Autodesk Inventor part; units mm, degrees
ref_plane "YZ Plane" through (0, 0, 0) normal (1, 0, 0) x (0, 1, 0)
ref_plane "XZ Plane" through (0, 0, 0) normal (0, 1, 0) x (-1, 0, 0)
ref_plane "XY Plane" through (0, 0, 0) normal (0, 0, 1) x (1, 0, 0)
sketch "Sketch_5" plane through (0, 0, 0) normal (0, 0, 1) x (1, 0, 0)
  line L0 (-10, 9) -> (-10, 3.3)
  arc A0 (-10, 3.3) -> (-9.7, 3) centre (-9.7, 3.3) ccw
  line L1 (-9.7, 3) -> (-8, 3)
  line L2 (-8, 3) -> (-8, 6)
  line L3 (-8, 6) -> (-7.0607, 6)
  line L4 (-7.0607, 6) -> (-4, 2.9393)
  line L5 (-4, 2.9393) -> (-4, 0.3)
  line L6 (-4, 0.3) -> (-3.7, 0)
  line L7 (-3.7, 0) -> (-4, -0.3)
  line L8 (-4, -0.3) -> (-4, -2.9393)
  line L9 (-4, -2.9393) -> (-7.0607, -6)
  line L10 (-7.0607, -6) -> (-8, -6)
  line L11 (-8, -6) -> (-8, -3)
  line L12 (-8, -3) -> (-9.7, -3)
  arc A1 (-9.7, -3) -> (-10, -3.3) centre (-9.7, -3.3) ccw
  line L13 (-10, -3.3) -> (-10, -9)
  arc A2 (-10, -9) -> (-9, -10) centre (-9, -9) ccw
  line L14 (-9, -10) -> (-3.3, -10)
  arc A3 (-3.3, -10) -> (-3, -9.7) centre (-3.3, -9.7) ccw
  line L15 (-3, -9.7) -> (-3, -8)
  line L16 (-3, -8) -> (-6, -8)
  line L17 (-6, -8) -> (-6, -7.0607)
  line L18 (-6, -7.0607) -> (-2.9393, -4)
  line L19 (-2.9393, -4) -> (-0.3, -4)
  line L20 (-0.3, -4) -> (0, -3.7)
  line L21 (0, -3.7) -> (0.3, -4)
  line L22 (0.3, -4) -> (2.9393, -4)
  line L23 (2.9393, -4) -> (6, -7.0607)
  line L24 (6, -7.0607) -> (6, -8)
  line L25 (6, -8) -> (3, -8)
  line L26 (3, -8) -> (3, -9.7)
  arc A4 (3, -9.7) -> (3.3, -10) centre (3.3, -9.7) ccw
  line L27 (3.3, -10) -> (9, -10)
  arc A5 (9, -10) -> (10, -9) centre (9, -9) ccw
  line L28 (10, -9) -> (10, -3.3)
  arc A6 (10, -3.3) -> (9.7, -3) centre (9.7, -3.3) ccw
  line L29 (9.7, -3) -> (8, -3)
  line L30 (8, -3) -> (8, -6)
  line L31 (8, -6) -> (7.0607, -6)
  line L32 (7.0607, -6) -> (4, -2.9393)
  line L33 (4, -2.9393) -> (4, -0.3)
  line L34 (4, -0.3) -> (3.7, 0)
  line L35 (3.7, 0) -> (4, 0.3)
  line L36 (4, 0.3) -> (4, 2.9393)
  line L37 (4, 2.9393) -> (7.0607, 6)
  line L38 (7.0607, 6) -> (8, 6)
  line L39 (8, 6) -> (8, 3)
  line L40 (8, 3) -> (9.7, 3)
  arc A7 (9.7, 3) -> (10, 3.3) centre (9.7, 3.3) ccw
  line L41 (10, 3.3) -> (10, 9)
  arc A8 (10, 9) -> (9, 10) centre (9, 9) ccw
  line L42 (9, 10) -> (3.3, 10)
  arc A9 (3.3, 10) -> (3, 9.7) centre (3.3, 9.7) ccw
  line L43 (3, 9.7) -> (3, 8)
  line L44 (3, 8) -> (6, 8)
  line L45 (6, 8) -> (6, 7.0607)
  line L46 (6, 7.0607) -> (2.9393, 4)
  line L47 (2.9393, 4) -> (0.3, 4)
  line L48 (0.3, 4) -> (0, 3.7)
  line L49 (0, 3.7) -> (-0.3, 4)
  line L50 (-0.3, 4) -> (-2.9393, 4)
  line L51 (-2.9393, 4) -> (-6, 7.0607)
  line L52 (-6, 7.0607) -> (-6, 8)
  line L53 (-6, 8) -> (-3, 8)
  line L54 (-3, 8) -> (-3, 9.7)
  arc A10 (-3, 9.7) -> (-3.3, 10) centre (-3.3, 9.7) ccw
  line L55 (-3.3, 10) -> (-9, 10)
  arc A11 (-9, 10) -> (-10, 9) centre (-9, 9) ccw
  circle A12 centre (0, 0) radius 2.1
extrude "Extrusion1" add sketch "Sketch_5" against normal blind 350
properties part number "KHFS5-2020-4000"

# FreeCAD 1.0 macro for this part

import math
import FreeCAD as App
import Part
import Sketcher

V = App.Vector
Q = App.Units.Quantity

doc = App.newDocument("Part")
body = doc.addObject("PartDesign::Body", "Body")

sketch1 = body.newObject("Sketcher::SketchObject", "Sketch")
sketch1.AttachmentSupport = (doc.getObject("XY_Plane"), [""])
sketch1.MapMode = "FlatFace"
sketch1.addGeometry([
    Part.ArcOfCircle(Part.Circle(V(-9, 9, 0), V(0, 0, 1), 1), math.radians(90), math.radians(180)),
    Part.LineSegment(V(-10, 9, 0), V(-10, 3.3, 0)),
    Part.ArcOfCircle(Part.Circle(V(-9.7, 3.3, 0), V(0, 0, 1), 0.3), math.radians(180), math.radians(270)),
    Part.LineSegment(V(-9.7, 3, 0), V(-8, 3, 0)),
    Part.LineSegment(V(-8, 3, 0), V(-8, 6, 0)),
    Part.LineSegment(V(-8, 6, 0), V(-7.06, 6, 0)),
    Part.LineSegment(V(-7.06, 6, 0), V(-4, 2.94, 0)),
    Part.LineSegment(V(-4, 2.94, 0), V(-4, 0.3, 0)),
    Part.LineSegment(V(-4, 0.3, 0), V(-3.7, 0, 0)),
    Part.LineSegment(V(-3.7, 0, 0), V(-4, -0.3, 0)),
    Part.LineSegment(V(-4, -0.3, 0), V(-4, -2.94, 0)),
    Part.LineSegment(V(-4, -2.94, 0), V(-7.06, -6, 0)),
    Part.LineSegment(V(-7.06, -6, 0), V(-8, -6, 0)),
    Part.LineSegment(V(-8, -6, 0), V(-8, -3, 0)),
    Part.LineSegment(V(-8, -3, 0), V(-9.7, -3, 0)),
    Part.ArcOfCircle(Part.Circle(V(-9.7, -3.3, 0), V(0, 0, 1), 0.3), math.radians(90), math.radians(180)),
    Part.LineSegment(V(-10, -3.3, 0), V(-10, -9, 0)),
    Part.ArcOfCircle(Part.Circle(V(-9, -9, 0), V(0, 0, 1), 1), math.radians(180), math.radians(270)),
    Part.LineSegment(V(-9, -10, 0), V(-3.3, -10, 0)),
    Part.ArcOfCircle(Part.Circle(V(-3.3, -9.7, 0), V(0, 0, 1), 0.3), math.radians(-90), math.radians(0)),
    Part.LineSegment(V(-3, -9.7, 0), V(-3, -8, 0)),
    Part.LineSegment(V(-3, -8, 0), V(-6, -8, 0)),
    Part.LineSegment(V(-6, -8, 0), V(-6, -7.06, 0)),
    Part.LineSegment(V(-6, -7.06, 0), V(-2.94, -4, 0)),
    Part.LineSegment(V(-2.94, -4, 0), V(-0.3, -4, 0)),
    Part.LineSegment(V(-0.3, -4, 0), V(0, -3.7, 0)),
    Part.LineSegment(V(0, -3.7, 0), V(0.3, -4, 0)),
    Part.LineSegment(V(0.3, -4, 0), V(2.94, -4, 0)),
    Part.LineSegment(V(2.94, -4, 0), V(6, -7.06, 0)),
    Part.LineSegment(V(6, -7.06, 0), V(6, -8, 0)),
    Part.LineSegment(V(6, -8, 0), V(3, -8, 0)),
    Part.LineSegment(V(3, -8, 0), V(3, -9.7, 0)),
    Part.ArcOfCircle(Part.Circle(V(3.3, -9.7, 0), V(0, 0, 1), 0.3), math.radians(180), math.radians(270)),
    Part.LineSegment(V(3.3, -10, 0), V(9, -10, 0)),
    Part.ArcOfCircle(Part.Circle(V(9, -9, 0), V(0, 0, 1), 1), math.radians(-90), math.radians(0)),
    Part.LineSegment(V(10, -9, 0), V(10, -3.3, 0)),
    Part.ArcOfCircle(Part.Circle(V(9.7, -3.3, 0), V(0, 0, 1), 0.3), math.radians(0), math.radians(90)),
    Part.LineSegment(V(9.7, -3, 0), V(8, -3, 0)),
    Part.LineSegment(V(8, -3, 0), V(8, -6, 0)),
    Part.LineSegment(V(8, -6, 0), V(7.06, -6, 0)),
    Part.LineSegment(V(7.06, -6, 0), V(4, -2.94, 0)),
    Part.LineSegment(V(4, -2.94, 0), V(4, -0.3, 0)),
    Part.LineSegment(V(4, -0.3, 0), V(3.7, 0, 0)),
    Part.LineSegment(V(3.7, 0, 0), V(4, 0.3, 0)),
    Part.LineSegment(V(4, 0.3, 0), V(4, 2.94, 0)),
    Part.LineSegment(V(4, 2.94, 0), V(7.06, 6, 0)),
    Part.LineSegment(V(7.06, 6, 0), V(8, 6, 0)),
    Part.LineSegment(V(8, 6, 0), V(8, 3, 0)),
    Part.LineSegment(V(8, 3, 0), V(9.7, 3, 0)),
    Part.ArcOfCircle(Part.Circle(V(9.7, 3.3, 0), V(0, 0, 1), 0.3), math.radians(-90), math.radians(0)),
    Part.LineSegment(V(10, 3.3, 0), V(10, 9, 0)),
    Part.ArcOfCircle(Part.Circle(V(9, 9, 0), V(0, 0, 1), 1), math.radians(0), math.radians(90)),
    Part.LineSegment(V(9, 10, 0), V(3.3, 10, 0)),
    Part.ArcOfCircle(Part.Circle(V(3.3, 9.7, 0), V(0, 0, 1), 0.3), math.radians(90), math.radians(180)),
    Part.LineSegment(V(3, 9.7, 0), V(3, 8, 0)),
    Part.LineSegment(V(3, 8, 0), V(6, 8, 0)),
    Part.LineSegment(V(6, 8, 0), V(6, 7.06, 0)),
    Part.LineSegment(V(6, 7.06, 0), V(2.94, 4, 0)),
    Part.LineSegment(V(2.94, 4, 0), V(0.3, 4, 0)),
    Part.LineSegment(V(0.3, 4, 0), V(0, 3.7, 0)),
    Part.LineSegment(V(0, 3.7, 0), V(-0.3, 4, 0)),
    Part.LineSegment(V(-0.3, 4, 0), V(-2.94, 4, 0)),
    Part.LineSegment(V(-2.94, 4, 0), V(-6, 7.06, 0)),
    Part.LineSegment(V(-6, 7.06, 0), V(-6, 8, 0)),
    Part.LineSegment(V(-6, 8, 0), V(-3, 8, 0)),
    Part.LineSegment(V(-3, 8, 0), V(-3, 9.7, 0)),
    Part.ArcOfCircle(Part.Circle(V(-3.3, 9.7, 0), V(0, 0, 1), 0.3), math.radians(0), math.radians(90)),
    Part.LineSegment(V(-3.3, 10, 0), V(-9, 10, 0)),
    Part.Circle(V(0, 0, 0), V(0, 0, 1), 2.1),
], False)
sketch1.addConstraint([
    Sketcher.Constraint("Tangent", 0, 2, 1, 1),
    Sketcher.Constraint("Tangent", 1, 2, 2, 1),
    Sketcher.Constraint("Tangent", 2, 2, 3, 1),
    Sketcher.Constraint("Coincident", 3, 2, 4, 1),
    Sketcher.Constraint("Coincident", 4, 2, 5, 1),
    Sketcher.Constraint("Coincident", 5, 2, 6, 1),
    Sketcher.Constraint("Coincident", 6, 2, 7, 1),
    Sketcher.Constraint("Coincident", 7, 2, 8, 1),
    Sketcher.Constraint("Coincident", 8, 2, 9, 1),
    Sketcher.Constraint("Coincident", 9, 2, 10, 1),
    Sketcher.Constraint("Coincident", 10, 2, 11, 1),
    Sketcher.Constraint("Coincident", 11, 2, 12, 1),
    Sketcher.Constraint("Coincident", 12, 2, 13, 1),
    Sketcher.Constraint("Coincident", 13, 2, 14, 1),
    Sketcher.Constraint("Tangent", 14, 2, 15, 1),
    Sketcher.Constraint("Tangent", 15, 2, 16, 1),
    Sketcher.Constraint("Tangent", 16, 2, 17, 1),
    Sketcher.Constraint("Tangent", 17, 2, 18, 1),
    Sketcher.Constraint("Tangent", 18, 2, 19, 1),
    Sketcher.Constraint("Tangent", 19, 2, 20, 1),
    Sketcher.Constraint("Coincident", 20, 2, 21, 1),
    Sketcher.Constraint("Coincident", 21, 2, 22, 1),
    Sketcher.Constraint("Coincident", 22, 2, 23, 1),
    Sketcher.Constraint("Coincident", 23, 2, 24, 1),
    Sketcher.Constraint("Coincident", 24, 2, 25, 1),
    Sketcher.Constraint("Coincident", 25, 2, 26, 1),
    Sketcher.Constraint("Coincident", 26, 2, 27, 1),
    Sketcher.Constraint("Coincident", 27, 2, 28, 1),
    Sketcher.Constraint("Coincident", 28, 2, 29, 1),
    Sketcher.Constraint("Coincident", 29, 2, 30, 1),
    Sketcher.Constraint("Coincident", 30, 2, 31, 1),
    Sketcher.Constraint("Tangent", 31, 2, 32, 1),
    Sketcher.Constraint("Tangent", 32, 2, 33, 1),
    Sketcher.Constraint("Tangent", 33, 2, 34, 1),
    Sketcher.Constraint("Tangent", 34, 2, 35, 1),
    Sketcher.Constraint("Tangent", 35, 2, 36, 1),
    Sketcher.Constraint("Tangent", 36, 2, 37, 1),
    Sketcher.Constraint("Coincident", 37, 2, 38, 1),
    Sketcher.Constraint("Coincident", 38, 2, 39, 1),
    Sketcher.Constraint("Coincident", 39, 2, 40, 1),
    Sketcher.Constraint("Coincident", 40, 2, 41, 1),
    Sketcher.Constraint("Coincident", 41, 2, 42, 1),
    Sketcher.Constraint("Coincident", 42, 2, 43, 1),
    Sketcher.Constraint("Coincident", 43, 2, 44, 1),
    Sketcher.Constraint("Coincident", 44, 2, 45, 1),
    Sketcher.Constraint("Coincident", 45, 2, 46, 1),
    Sketcher.Constraint("Coincident", 46, 2, 47, 1),
    Sketcher.Constraint("Coincident", 47, 2, 48, 1),
    Sketcher.Constraint("Tangent", 48, 2, 49, 1),
    Sketcher.Constraint("Tangent", 49, 2, 50, 1),
    Sketcher.Constraint("Tangent", 50, 2, 51, 1),
    Sketcher.Constraint("Tangent", 51, 2, 52, 1),
    Sketcher.Constraint("Tangent", 52, 2, 53, 1),
    Sketcher.Constraint("Tangent", 53, 2, 54, 1),
    Sketcher.Constraint("Coincident", 54, 2, 55, 1),
    Sketcher.Constraint("Coincident", 55, 2, 56, 1),
    Sketcher.Constraint("Coincident", 56, 2, 57, 1),
    Sketcher.Constraint("Coincident", 57, 2, 58, 1),
    Sketcher.Constraint("Coincident", 58, 2, 59, 1),
    Sketcher.Constraint("Coincident", 59, 2, 60, 1),
    Sketcher.Constraint("Coincident", 60, 2, 61, 1),
    Sketcher.Constraint("Coincident", 61, 2, 62, 1),
    Sketcher.Constraint("Coincident", 62, 2, 63, 1),
    Sketcher.Constraint("Coincident", 63, 2, 64, 1),
    Sketcher.Constraint("Coincident", 64, 2, 65, 1),
    Sketcher.Constraint("Tangent", 65, 2, 66, 1),
    Sketcher.Constraint("Tangent", 66, 2, 67, 1),
    Sketcher.Constraint("Tangent", 67, 2, 0, 1),
    Sketcher.Constraint("Vertical", 1),
    Sketcher.Constraint("Horizontal", 3),
    Sketcher.Constraint("Vertical", 4),
    Sketcher.Constraint("Horizontal", 5),
    Sketcher.Constraint("Vertical", 7),
    Sketcher.Constraint("Vertical", 10),
    Sketcher.Constraint("Horizontal", 12),
    Sketcher.Constraint("Vertical", 13),
    Sketcher.Constraint("Horizontal", 14),
    Sketcher.Constraint("Vertical", 16),
    Sketcher.Constraint("Horizontal", 18),
    Sketcher.Constraint("Vertical", 20),
    Sketcher.Constraint("Horizontal", 21),
    Sketcher.Constraint("Vertical", 22),
    Sketcher.Constraint("Horizontal", 24),
    Sketcher.Constraint("Horizontal", 27),
    Sketcher.Constraint("Vertical", 29),
    Sketcher.Constraint("Horizontal", 30),
    Sketcher.Constraint("Vertical", 31),
    Sketcher.Constraint("Horizontal", 33),
    Sketcher.Constraint("Vertical", 35),
    Sketcher.Constraint("Horizontal", 37),
    Sketcher.Constraint("Vertical", 38),
    Sketcher.Constraint("Horizontal", 39),
    Sketcher.Constraint("Vertical", 41),
    Sketcher.Constraint("Vertical", 44),
    Sketcher.Constraint("Horizontal", 46),
    Sketcher.Constraint("Vertical", 47),
    Sketcher.Constraint("Horizontal", 48),
    Sketcher.Constraint("Vertical", 50),
    Sketcher.Constraint("Horizontal", 52),
    Sketcher.Constraint("Vertical", 54),
    Sketcher.Constraint("Horizontal", 55),
    Sketcher.Constraint("Vertical", 56),
    Sketcher.Constraint("Horizontal", 58),
    Sketcher.Constraint("Horizontal", 61),
    Sketcher.Constraint("Vertical", 63),
    Sketcher.Constraint("Horizontal", 64),
    Sketcher.Constraint("Vertical", 65),
    Sketcher.Constraint("Horizontal", 67),
    Sketcher.Constraint("Coincident", 68, 3, -1, 1),
    Sketcher.Constraint("Equal", 2, 15),
    Sketcher.Constraint("Equal", 0, 17),
    Sketcher.Constraint("Equal", 15, 19),
    Sketcher.Constraint("Equal", 19, 32),
    Sketcher.Constraint("Equal", 17, 34),
    Sketcher.Constraint("Equal", 32, 36),
    Sketcher.Constraint("Equal", 36, 49),
    Sketcher.Constraint("Equal", 34, 51),
    Sketcher.Constraint("Equal", 49, 53),
    Sketcher.Constraint("Equal", 53, 66),
    Sketcher.Constraint("Symmetric", 0, 3, 34, 3, -1, 1),
    Sketcher.Constraint("Symmetric", 15, 3, 49, 3, -1, 1),
    Sketcher.Constraint("Symmetric", 19, 3, 53, 3, -1, 1),
    Sketcher.Constraint("Symmetric", 3, 2, 37, 2, -1, 1),
    Sketcher.Constraint("Symmetric", 5, 2, 39, 2, -1, 1),
    Sketcher.Constraint("Symmetric", 6, 2, 40, 2, -1, 1),
    Sketcher.Constraint("Symmetric", 8, 2, 42, 2, -1, 1),
    Sketcher.Constraint("Symmetric", 9, 2, 43, 2, -1, 1),
    Sketcher.Constraint("Symmetric", 11, 2, 45, 2, -1, 1),
    Sketcher.Constraint("Symmetric", 21, 2, 55, 2, -1, 1),
    Sketcher.Constraint("Symmetric", 23, 2, 57, 2, -1, 1),
    Sketcher.Constraint("Symmetric", 25, 2, 59, 2, -1, 1),
    Sketcher.Constraint("Symmetric", 26, 2, 60, 2, -1, 1),
    Sketcher.Constraint("Symmetric", 28, 2, 62, 2, -1, 1),
    Sketcher.Constraint("Symmetric", 30, 2, 64, 2, -1, 1),
    Sketcher.Constraint("Symmetric", 19, 3, 32, 3, -2),
    Sketcher.Constraint("Symmetric", 15, 3, 36, 3, -2),
    Sketcher.Constraint("Symmetric", 24, 2, 26, 2, -2),
    Sketcher.Constraint("Symmetric", 22, 2, 28, 2, -2),
    Sketcher.Constraint("Symmetric", 12, 2, 38, 2, -2),
    Sketcher.Constraint("Symmetric", 10, 2, 40, 2, -2),
    Sketcher.Constraint("PointOnObject", 8, 2, -1),
    Sketcher.Constraint("PointOnObject", 25, 2, -2),
    Sketcher.Constraint("Parallel", 6, 8),
    Sketcher.Constraint("Perpendicular", 8, 9),
    Sketcher.Constraint("Parallel", 9, 11),
    Sketcher.Constraint("Parallel", 11, 23),
    Sketcher.Constraint("Parallel", 23, 25),
    Sketcher.Constraint("Perpendicular", 25, 26),
    Sketcher.Constraint("Parallel", 26, 28),
    Sketcher.Constraint("Parallel", 40, 42),
    Sketcher.Constraint("Parallel", 43, 45),
    Sketcher.Constraint("Parallel", 45, 57),
    Sketcher.Constraint("Parallel", 57, 59),
    Sketcher.Constraint("Parallel", 60, 62),
    Sketcher.Constraint("Horizontal", 21, 2, 29, 2),
    Sketcher.Constraint("Vertical", 38, 2, 46, 2),
    Sketcher.Constraint("Equal", 67, 1),
    Sketcher.Constraint("Equal", 64, 4),
    Sketcher.Constraint("Equal", 61, 7),
    Sketcher.Constraint("Equal", 48, 20),
    Sketcher.Constraint("Equal", 46, 22),
    Sketcher.Constraint("Equal", 11, 23),
    Sketcher.Constraint("Equal", 9, 25),
    Sketcher.Constraint("Radius", 0, Q("1 mm")),
    Sketcher.Constraint("Diameter", 68, Q("4.2 mm")),
    Sketcher.Constraint("Radius", 2, Q("0.3 mm")),
    Sketcher.Constraint("DistanceX", 21, 2, 21, 1, Q("3 mm")),
    Sketcher.Constraint("DistanceX", 3, 1, 3, 2, Q("1.7 mm")),
    Sketcher.Constraint("DistanceX", 18, 1, 18, 2, Q("5.7 mm")),
    Sketcher.Constraint("DistanceX", 0, 3, -1, 1, Q("9 mm")),
    Sketcher.Constraint("DistanceX", 6, 2, -1, 1, Q("4 mm")),
    Sketcher.Constraint("DistanceY", -1, 1, 7, 2, Q("0.3 mm")),
    Sketcher.Constraint("DistanceX", 5, 1, 5, 2, Q("0.9393 mm")),
])
pad1 = body.newObject("PartDesign::Pad", "Pad")
pad1.Profile = sketch1
pad1.Length = 350
pad1.Reversed = True

doc.recompute()
